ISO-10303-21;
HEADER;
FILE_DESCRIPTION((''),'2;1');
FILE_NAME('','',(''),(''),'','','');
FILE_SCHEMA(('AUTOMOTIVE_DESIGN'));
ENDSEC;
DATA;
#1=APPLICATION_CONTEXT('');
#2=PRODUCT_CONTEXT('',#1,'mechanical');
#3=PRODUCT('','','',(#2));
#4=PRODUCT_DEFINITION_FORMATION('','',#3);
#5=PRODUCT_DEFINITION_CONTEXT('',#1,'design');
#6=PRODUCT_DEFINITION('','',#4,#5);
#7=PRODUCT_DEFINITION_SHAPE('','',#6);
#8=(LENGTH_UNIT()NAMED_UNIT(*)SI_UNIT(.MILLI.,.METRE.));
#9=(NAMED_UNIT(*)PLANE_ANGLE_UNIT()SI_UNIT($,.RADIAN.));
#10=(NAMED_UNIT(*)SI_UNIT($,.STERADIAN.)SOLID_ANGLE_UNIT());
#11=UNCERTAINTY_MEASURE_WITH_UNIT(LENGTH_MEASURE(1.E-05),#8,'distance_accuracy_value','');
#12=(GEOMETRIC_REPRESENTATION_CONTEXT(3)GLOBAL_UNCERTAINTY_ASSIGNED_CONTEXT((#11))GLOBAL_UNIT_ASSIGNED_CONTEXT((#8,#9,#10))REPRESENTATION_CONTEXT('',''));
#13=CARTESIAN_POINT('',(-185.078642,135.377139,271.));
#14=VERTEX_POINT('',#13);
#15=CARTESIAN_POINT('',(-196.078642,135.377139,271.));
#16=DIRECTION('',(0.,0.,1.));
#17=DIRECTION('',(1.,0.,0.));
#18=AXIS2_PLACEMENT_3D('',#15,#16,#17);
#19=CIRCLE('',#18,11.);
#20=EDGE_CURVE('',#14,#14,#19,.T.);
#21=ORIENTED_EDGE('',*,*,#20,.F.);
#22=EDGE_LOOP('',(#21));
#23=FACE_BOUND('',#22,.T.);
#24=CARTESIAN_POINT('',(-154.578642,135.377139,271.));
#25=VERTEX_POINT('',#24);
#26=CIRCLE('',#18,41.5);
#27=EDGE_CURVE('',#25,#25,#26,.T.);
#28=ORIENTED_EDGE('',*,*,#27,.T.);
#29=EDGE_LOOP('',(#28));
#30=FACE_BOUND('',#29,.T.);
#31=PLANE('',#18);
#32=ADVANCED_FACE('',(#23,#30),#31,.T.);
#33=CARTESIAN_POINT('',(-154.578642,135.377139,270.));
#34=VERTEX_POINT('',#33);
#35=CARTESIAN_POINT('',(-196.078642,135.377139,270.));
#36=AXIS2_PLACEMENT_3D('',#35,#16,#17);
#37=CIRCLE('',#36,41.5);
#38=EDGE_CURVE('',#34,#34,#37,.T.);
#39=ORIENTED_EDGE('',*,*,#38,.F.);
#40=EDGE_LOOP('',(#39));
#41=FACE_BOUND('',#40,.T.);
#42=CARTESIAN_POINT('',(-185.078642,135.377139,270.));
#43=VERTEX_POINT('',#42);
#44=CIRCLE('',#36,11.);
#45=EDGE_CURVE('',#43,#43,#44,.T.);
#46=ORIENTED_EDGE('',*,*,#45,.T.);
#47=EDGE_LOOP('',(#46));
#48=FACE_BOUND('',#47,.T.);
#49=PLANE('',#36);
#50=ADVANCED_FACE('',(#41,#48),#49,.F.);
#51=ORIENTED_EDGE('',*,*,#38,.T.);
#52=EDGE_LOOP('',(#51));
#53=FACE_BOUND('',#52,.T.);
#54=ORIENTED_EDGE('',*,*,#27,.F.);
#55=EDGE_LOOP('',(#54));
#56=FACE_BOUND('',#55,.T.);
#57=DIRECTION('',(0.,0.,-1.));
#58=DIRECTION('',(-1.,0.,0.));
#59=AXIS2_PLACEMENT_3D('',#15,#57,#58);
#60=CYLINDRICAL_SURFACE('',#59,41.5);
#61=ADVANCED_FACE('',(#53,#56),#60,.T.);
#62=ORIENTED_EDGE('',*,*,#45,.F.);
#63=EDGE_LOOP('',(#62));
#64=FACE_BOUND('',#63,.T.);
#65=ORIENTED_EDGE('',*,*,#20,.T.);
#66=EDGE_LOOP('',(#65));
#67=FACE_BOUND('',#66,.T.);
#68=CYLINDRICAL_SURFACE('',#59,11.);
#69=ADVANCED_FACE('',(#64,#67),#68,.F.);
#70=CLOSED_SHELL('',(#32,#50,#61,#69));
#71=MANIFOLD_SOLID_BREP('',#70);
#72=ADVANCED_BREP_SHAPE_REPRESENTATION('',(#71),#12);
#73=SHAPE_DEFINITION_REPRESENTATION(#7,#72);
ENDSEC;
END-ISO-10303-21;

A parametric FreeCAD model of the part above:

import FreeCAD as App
import Part
import Sketcher
from FreeCAD import Vector
Q = App.Units.Quantity

doc = App.newDocument("Part")
params = doc.addObject("Spreadsheet::Sheet", "Params")
for row, (alias, value) in enumerate([
    ("sketch1_diameter", "83 mm"),
    ("sketch1_diameter2", "22 mm"),
    ("pad1_length", "1 mm"),
], start=1):
    params.set(f"A{row}", alias)
    params.set(f"B{row}", "=" + value)
    params.setAlias(f"B{row}", alias)

body = doc.addObject("PartDesign::Body", "Body")

# Sketch on XY plane
sketch1 = doc.addObject("Sketcher::SketchObject", "Sketch")
body.addObject(sketch1)
sketch1.AttachmentSupport = (doc.XY_Plane, [""])
sketch1.MapMode = "FlatFace"
sketch1.AttachmentOffset = App.Placement(Vector(0, 0, 270), App.Rotation())
sketch1.addGeometry([
    Part.Circle(Vector(-196.078642, 135.377139, 0), Vector(0, 0, 1), 41.5),
    Part.Circle(Vector(-196.078642, 135.377139, 0), Vector(0, 0, 1), 11),
], False)
sketch1.addConstraint([
    Sketcher.Constraint("Coincident", 1, 3, 0, 3),
    Sketcher.Constraint("Diameter", 0, Q("83 mm")),
    Sketcher.Constraint("Diameter", 1, Q("22 mm")),
    Sketcher.Constraint("DistanceY", -1, 1, 0, 3, Q("135.377139 mm")),
    Sketcher.Constraint("DistanceX", 0, 3, -1, 1, Q("196.078642 mm")),
])
sketch1.setExpression("Constraints[1]", "Params.sketch1_diameter")
sketch1.setExpression("Constraints[2]", "Params.sketch1_diameter2")
pad1 = doc.addObject("PartDesign::Pad", "Pad")
body.addObject(pad1)
pad1.Profile = sketch1
pad1.setExpression("Length", "Params.pad1_length")

doc.recompute()
